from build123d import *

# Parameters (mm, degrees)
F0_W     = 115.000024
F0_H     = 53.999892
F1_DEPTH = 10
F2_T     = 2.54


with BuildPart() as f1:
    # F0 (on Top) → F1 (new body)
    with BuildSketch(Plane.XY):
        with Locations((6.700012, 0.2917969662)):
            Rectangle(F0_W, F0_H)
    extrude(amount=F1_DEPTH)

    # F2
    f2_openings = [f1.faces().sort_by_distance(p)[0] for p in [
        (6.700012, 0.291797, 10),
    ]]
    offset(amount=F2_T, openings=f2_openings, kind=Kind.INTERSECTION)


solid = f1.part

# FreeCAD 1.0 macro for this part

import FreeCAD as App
import Part
import Sketcher
from FreeCAD import Vector


def faces_at(feature, points):
    """Names of the faces that lie closest to the given points."""
    faces = feature.Shape.Faces
    near = lambda p: min(range(len(faces)), key=lambda i: faces[i].distToShape(Part.Vertex(*p))[0])
    return sorted({f"Face{near(p) + 1}" for p in points})


def add_polygon(sketch, points):
    """Adds a closed chain of lines whose ends are joined by coincident constraints."""
    first, n = sketch.GeometryCount, len(points)
    for a, b in zip(points, points[1:] + points[:1]):
        sketch.addGeometry(Part.LineSegment(App.Vector(*a, 0), App.Vector(*b, 0)), False)
    for i in range(n):
        sketch.addConstraint(Sketcher.Constraint("Coincident", first + i, 2, first + (i + 1) % n, 1))

doc = App.newDocument("Part")
body = doc.addObject("PartDesign::Body", "Body")

# Sketch on XY plane
sketch1 = body.newObject("Sketcher::SketchObject", "Sketch")
sketch1.AttachmentSupport = (doc.getObject("XY_Plane"), [""])
sketch1.MapMode = "FlatFace"
add_polygon(sketch1, [(-50.8, 27.291743), (-50.8, -26.708149), (64.200024, -26.708149), (64.200024, 27.291743)])  # lines 0-3
sketch1.addConstraint([
    Sketcher.Constraint("Vertical", 0),
    Sketcher.Constraint("Horizontal", 1),
    Sketcher.Constraint("Vertical", 2),
    Sketcher.Constraint("Horizontal", 3),
    Sketcher.Constraint("DistanceX", 0, 2, -1, 1, 50.8),
    Sketcher.Constraint("DistanceX", 1, 1, 1, 2, 115.000024),
    Sketcher.Constraint("DistanceY", 0, 2, 0, 1, 53.999892),
    Sketcher.Constraint("DistanceY", 0, 2, -1, 1, 26.708149),
])
pad1 = body.newObject("PartDesign::Pad", "Pad")
pad1.Profile = sketch1
pad1.Length = 10
doc.recompute()

thickness = body.newObject("PartDesign::Thickness", "Thickness")
thickness.Base = (pad1, faces_at(pad1, [(6.7, 0.292, 10)]))
thickness.Value = 2.54
thickness.Reversed = False
thickness.Join = "Intersection"

doc.recompute()
